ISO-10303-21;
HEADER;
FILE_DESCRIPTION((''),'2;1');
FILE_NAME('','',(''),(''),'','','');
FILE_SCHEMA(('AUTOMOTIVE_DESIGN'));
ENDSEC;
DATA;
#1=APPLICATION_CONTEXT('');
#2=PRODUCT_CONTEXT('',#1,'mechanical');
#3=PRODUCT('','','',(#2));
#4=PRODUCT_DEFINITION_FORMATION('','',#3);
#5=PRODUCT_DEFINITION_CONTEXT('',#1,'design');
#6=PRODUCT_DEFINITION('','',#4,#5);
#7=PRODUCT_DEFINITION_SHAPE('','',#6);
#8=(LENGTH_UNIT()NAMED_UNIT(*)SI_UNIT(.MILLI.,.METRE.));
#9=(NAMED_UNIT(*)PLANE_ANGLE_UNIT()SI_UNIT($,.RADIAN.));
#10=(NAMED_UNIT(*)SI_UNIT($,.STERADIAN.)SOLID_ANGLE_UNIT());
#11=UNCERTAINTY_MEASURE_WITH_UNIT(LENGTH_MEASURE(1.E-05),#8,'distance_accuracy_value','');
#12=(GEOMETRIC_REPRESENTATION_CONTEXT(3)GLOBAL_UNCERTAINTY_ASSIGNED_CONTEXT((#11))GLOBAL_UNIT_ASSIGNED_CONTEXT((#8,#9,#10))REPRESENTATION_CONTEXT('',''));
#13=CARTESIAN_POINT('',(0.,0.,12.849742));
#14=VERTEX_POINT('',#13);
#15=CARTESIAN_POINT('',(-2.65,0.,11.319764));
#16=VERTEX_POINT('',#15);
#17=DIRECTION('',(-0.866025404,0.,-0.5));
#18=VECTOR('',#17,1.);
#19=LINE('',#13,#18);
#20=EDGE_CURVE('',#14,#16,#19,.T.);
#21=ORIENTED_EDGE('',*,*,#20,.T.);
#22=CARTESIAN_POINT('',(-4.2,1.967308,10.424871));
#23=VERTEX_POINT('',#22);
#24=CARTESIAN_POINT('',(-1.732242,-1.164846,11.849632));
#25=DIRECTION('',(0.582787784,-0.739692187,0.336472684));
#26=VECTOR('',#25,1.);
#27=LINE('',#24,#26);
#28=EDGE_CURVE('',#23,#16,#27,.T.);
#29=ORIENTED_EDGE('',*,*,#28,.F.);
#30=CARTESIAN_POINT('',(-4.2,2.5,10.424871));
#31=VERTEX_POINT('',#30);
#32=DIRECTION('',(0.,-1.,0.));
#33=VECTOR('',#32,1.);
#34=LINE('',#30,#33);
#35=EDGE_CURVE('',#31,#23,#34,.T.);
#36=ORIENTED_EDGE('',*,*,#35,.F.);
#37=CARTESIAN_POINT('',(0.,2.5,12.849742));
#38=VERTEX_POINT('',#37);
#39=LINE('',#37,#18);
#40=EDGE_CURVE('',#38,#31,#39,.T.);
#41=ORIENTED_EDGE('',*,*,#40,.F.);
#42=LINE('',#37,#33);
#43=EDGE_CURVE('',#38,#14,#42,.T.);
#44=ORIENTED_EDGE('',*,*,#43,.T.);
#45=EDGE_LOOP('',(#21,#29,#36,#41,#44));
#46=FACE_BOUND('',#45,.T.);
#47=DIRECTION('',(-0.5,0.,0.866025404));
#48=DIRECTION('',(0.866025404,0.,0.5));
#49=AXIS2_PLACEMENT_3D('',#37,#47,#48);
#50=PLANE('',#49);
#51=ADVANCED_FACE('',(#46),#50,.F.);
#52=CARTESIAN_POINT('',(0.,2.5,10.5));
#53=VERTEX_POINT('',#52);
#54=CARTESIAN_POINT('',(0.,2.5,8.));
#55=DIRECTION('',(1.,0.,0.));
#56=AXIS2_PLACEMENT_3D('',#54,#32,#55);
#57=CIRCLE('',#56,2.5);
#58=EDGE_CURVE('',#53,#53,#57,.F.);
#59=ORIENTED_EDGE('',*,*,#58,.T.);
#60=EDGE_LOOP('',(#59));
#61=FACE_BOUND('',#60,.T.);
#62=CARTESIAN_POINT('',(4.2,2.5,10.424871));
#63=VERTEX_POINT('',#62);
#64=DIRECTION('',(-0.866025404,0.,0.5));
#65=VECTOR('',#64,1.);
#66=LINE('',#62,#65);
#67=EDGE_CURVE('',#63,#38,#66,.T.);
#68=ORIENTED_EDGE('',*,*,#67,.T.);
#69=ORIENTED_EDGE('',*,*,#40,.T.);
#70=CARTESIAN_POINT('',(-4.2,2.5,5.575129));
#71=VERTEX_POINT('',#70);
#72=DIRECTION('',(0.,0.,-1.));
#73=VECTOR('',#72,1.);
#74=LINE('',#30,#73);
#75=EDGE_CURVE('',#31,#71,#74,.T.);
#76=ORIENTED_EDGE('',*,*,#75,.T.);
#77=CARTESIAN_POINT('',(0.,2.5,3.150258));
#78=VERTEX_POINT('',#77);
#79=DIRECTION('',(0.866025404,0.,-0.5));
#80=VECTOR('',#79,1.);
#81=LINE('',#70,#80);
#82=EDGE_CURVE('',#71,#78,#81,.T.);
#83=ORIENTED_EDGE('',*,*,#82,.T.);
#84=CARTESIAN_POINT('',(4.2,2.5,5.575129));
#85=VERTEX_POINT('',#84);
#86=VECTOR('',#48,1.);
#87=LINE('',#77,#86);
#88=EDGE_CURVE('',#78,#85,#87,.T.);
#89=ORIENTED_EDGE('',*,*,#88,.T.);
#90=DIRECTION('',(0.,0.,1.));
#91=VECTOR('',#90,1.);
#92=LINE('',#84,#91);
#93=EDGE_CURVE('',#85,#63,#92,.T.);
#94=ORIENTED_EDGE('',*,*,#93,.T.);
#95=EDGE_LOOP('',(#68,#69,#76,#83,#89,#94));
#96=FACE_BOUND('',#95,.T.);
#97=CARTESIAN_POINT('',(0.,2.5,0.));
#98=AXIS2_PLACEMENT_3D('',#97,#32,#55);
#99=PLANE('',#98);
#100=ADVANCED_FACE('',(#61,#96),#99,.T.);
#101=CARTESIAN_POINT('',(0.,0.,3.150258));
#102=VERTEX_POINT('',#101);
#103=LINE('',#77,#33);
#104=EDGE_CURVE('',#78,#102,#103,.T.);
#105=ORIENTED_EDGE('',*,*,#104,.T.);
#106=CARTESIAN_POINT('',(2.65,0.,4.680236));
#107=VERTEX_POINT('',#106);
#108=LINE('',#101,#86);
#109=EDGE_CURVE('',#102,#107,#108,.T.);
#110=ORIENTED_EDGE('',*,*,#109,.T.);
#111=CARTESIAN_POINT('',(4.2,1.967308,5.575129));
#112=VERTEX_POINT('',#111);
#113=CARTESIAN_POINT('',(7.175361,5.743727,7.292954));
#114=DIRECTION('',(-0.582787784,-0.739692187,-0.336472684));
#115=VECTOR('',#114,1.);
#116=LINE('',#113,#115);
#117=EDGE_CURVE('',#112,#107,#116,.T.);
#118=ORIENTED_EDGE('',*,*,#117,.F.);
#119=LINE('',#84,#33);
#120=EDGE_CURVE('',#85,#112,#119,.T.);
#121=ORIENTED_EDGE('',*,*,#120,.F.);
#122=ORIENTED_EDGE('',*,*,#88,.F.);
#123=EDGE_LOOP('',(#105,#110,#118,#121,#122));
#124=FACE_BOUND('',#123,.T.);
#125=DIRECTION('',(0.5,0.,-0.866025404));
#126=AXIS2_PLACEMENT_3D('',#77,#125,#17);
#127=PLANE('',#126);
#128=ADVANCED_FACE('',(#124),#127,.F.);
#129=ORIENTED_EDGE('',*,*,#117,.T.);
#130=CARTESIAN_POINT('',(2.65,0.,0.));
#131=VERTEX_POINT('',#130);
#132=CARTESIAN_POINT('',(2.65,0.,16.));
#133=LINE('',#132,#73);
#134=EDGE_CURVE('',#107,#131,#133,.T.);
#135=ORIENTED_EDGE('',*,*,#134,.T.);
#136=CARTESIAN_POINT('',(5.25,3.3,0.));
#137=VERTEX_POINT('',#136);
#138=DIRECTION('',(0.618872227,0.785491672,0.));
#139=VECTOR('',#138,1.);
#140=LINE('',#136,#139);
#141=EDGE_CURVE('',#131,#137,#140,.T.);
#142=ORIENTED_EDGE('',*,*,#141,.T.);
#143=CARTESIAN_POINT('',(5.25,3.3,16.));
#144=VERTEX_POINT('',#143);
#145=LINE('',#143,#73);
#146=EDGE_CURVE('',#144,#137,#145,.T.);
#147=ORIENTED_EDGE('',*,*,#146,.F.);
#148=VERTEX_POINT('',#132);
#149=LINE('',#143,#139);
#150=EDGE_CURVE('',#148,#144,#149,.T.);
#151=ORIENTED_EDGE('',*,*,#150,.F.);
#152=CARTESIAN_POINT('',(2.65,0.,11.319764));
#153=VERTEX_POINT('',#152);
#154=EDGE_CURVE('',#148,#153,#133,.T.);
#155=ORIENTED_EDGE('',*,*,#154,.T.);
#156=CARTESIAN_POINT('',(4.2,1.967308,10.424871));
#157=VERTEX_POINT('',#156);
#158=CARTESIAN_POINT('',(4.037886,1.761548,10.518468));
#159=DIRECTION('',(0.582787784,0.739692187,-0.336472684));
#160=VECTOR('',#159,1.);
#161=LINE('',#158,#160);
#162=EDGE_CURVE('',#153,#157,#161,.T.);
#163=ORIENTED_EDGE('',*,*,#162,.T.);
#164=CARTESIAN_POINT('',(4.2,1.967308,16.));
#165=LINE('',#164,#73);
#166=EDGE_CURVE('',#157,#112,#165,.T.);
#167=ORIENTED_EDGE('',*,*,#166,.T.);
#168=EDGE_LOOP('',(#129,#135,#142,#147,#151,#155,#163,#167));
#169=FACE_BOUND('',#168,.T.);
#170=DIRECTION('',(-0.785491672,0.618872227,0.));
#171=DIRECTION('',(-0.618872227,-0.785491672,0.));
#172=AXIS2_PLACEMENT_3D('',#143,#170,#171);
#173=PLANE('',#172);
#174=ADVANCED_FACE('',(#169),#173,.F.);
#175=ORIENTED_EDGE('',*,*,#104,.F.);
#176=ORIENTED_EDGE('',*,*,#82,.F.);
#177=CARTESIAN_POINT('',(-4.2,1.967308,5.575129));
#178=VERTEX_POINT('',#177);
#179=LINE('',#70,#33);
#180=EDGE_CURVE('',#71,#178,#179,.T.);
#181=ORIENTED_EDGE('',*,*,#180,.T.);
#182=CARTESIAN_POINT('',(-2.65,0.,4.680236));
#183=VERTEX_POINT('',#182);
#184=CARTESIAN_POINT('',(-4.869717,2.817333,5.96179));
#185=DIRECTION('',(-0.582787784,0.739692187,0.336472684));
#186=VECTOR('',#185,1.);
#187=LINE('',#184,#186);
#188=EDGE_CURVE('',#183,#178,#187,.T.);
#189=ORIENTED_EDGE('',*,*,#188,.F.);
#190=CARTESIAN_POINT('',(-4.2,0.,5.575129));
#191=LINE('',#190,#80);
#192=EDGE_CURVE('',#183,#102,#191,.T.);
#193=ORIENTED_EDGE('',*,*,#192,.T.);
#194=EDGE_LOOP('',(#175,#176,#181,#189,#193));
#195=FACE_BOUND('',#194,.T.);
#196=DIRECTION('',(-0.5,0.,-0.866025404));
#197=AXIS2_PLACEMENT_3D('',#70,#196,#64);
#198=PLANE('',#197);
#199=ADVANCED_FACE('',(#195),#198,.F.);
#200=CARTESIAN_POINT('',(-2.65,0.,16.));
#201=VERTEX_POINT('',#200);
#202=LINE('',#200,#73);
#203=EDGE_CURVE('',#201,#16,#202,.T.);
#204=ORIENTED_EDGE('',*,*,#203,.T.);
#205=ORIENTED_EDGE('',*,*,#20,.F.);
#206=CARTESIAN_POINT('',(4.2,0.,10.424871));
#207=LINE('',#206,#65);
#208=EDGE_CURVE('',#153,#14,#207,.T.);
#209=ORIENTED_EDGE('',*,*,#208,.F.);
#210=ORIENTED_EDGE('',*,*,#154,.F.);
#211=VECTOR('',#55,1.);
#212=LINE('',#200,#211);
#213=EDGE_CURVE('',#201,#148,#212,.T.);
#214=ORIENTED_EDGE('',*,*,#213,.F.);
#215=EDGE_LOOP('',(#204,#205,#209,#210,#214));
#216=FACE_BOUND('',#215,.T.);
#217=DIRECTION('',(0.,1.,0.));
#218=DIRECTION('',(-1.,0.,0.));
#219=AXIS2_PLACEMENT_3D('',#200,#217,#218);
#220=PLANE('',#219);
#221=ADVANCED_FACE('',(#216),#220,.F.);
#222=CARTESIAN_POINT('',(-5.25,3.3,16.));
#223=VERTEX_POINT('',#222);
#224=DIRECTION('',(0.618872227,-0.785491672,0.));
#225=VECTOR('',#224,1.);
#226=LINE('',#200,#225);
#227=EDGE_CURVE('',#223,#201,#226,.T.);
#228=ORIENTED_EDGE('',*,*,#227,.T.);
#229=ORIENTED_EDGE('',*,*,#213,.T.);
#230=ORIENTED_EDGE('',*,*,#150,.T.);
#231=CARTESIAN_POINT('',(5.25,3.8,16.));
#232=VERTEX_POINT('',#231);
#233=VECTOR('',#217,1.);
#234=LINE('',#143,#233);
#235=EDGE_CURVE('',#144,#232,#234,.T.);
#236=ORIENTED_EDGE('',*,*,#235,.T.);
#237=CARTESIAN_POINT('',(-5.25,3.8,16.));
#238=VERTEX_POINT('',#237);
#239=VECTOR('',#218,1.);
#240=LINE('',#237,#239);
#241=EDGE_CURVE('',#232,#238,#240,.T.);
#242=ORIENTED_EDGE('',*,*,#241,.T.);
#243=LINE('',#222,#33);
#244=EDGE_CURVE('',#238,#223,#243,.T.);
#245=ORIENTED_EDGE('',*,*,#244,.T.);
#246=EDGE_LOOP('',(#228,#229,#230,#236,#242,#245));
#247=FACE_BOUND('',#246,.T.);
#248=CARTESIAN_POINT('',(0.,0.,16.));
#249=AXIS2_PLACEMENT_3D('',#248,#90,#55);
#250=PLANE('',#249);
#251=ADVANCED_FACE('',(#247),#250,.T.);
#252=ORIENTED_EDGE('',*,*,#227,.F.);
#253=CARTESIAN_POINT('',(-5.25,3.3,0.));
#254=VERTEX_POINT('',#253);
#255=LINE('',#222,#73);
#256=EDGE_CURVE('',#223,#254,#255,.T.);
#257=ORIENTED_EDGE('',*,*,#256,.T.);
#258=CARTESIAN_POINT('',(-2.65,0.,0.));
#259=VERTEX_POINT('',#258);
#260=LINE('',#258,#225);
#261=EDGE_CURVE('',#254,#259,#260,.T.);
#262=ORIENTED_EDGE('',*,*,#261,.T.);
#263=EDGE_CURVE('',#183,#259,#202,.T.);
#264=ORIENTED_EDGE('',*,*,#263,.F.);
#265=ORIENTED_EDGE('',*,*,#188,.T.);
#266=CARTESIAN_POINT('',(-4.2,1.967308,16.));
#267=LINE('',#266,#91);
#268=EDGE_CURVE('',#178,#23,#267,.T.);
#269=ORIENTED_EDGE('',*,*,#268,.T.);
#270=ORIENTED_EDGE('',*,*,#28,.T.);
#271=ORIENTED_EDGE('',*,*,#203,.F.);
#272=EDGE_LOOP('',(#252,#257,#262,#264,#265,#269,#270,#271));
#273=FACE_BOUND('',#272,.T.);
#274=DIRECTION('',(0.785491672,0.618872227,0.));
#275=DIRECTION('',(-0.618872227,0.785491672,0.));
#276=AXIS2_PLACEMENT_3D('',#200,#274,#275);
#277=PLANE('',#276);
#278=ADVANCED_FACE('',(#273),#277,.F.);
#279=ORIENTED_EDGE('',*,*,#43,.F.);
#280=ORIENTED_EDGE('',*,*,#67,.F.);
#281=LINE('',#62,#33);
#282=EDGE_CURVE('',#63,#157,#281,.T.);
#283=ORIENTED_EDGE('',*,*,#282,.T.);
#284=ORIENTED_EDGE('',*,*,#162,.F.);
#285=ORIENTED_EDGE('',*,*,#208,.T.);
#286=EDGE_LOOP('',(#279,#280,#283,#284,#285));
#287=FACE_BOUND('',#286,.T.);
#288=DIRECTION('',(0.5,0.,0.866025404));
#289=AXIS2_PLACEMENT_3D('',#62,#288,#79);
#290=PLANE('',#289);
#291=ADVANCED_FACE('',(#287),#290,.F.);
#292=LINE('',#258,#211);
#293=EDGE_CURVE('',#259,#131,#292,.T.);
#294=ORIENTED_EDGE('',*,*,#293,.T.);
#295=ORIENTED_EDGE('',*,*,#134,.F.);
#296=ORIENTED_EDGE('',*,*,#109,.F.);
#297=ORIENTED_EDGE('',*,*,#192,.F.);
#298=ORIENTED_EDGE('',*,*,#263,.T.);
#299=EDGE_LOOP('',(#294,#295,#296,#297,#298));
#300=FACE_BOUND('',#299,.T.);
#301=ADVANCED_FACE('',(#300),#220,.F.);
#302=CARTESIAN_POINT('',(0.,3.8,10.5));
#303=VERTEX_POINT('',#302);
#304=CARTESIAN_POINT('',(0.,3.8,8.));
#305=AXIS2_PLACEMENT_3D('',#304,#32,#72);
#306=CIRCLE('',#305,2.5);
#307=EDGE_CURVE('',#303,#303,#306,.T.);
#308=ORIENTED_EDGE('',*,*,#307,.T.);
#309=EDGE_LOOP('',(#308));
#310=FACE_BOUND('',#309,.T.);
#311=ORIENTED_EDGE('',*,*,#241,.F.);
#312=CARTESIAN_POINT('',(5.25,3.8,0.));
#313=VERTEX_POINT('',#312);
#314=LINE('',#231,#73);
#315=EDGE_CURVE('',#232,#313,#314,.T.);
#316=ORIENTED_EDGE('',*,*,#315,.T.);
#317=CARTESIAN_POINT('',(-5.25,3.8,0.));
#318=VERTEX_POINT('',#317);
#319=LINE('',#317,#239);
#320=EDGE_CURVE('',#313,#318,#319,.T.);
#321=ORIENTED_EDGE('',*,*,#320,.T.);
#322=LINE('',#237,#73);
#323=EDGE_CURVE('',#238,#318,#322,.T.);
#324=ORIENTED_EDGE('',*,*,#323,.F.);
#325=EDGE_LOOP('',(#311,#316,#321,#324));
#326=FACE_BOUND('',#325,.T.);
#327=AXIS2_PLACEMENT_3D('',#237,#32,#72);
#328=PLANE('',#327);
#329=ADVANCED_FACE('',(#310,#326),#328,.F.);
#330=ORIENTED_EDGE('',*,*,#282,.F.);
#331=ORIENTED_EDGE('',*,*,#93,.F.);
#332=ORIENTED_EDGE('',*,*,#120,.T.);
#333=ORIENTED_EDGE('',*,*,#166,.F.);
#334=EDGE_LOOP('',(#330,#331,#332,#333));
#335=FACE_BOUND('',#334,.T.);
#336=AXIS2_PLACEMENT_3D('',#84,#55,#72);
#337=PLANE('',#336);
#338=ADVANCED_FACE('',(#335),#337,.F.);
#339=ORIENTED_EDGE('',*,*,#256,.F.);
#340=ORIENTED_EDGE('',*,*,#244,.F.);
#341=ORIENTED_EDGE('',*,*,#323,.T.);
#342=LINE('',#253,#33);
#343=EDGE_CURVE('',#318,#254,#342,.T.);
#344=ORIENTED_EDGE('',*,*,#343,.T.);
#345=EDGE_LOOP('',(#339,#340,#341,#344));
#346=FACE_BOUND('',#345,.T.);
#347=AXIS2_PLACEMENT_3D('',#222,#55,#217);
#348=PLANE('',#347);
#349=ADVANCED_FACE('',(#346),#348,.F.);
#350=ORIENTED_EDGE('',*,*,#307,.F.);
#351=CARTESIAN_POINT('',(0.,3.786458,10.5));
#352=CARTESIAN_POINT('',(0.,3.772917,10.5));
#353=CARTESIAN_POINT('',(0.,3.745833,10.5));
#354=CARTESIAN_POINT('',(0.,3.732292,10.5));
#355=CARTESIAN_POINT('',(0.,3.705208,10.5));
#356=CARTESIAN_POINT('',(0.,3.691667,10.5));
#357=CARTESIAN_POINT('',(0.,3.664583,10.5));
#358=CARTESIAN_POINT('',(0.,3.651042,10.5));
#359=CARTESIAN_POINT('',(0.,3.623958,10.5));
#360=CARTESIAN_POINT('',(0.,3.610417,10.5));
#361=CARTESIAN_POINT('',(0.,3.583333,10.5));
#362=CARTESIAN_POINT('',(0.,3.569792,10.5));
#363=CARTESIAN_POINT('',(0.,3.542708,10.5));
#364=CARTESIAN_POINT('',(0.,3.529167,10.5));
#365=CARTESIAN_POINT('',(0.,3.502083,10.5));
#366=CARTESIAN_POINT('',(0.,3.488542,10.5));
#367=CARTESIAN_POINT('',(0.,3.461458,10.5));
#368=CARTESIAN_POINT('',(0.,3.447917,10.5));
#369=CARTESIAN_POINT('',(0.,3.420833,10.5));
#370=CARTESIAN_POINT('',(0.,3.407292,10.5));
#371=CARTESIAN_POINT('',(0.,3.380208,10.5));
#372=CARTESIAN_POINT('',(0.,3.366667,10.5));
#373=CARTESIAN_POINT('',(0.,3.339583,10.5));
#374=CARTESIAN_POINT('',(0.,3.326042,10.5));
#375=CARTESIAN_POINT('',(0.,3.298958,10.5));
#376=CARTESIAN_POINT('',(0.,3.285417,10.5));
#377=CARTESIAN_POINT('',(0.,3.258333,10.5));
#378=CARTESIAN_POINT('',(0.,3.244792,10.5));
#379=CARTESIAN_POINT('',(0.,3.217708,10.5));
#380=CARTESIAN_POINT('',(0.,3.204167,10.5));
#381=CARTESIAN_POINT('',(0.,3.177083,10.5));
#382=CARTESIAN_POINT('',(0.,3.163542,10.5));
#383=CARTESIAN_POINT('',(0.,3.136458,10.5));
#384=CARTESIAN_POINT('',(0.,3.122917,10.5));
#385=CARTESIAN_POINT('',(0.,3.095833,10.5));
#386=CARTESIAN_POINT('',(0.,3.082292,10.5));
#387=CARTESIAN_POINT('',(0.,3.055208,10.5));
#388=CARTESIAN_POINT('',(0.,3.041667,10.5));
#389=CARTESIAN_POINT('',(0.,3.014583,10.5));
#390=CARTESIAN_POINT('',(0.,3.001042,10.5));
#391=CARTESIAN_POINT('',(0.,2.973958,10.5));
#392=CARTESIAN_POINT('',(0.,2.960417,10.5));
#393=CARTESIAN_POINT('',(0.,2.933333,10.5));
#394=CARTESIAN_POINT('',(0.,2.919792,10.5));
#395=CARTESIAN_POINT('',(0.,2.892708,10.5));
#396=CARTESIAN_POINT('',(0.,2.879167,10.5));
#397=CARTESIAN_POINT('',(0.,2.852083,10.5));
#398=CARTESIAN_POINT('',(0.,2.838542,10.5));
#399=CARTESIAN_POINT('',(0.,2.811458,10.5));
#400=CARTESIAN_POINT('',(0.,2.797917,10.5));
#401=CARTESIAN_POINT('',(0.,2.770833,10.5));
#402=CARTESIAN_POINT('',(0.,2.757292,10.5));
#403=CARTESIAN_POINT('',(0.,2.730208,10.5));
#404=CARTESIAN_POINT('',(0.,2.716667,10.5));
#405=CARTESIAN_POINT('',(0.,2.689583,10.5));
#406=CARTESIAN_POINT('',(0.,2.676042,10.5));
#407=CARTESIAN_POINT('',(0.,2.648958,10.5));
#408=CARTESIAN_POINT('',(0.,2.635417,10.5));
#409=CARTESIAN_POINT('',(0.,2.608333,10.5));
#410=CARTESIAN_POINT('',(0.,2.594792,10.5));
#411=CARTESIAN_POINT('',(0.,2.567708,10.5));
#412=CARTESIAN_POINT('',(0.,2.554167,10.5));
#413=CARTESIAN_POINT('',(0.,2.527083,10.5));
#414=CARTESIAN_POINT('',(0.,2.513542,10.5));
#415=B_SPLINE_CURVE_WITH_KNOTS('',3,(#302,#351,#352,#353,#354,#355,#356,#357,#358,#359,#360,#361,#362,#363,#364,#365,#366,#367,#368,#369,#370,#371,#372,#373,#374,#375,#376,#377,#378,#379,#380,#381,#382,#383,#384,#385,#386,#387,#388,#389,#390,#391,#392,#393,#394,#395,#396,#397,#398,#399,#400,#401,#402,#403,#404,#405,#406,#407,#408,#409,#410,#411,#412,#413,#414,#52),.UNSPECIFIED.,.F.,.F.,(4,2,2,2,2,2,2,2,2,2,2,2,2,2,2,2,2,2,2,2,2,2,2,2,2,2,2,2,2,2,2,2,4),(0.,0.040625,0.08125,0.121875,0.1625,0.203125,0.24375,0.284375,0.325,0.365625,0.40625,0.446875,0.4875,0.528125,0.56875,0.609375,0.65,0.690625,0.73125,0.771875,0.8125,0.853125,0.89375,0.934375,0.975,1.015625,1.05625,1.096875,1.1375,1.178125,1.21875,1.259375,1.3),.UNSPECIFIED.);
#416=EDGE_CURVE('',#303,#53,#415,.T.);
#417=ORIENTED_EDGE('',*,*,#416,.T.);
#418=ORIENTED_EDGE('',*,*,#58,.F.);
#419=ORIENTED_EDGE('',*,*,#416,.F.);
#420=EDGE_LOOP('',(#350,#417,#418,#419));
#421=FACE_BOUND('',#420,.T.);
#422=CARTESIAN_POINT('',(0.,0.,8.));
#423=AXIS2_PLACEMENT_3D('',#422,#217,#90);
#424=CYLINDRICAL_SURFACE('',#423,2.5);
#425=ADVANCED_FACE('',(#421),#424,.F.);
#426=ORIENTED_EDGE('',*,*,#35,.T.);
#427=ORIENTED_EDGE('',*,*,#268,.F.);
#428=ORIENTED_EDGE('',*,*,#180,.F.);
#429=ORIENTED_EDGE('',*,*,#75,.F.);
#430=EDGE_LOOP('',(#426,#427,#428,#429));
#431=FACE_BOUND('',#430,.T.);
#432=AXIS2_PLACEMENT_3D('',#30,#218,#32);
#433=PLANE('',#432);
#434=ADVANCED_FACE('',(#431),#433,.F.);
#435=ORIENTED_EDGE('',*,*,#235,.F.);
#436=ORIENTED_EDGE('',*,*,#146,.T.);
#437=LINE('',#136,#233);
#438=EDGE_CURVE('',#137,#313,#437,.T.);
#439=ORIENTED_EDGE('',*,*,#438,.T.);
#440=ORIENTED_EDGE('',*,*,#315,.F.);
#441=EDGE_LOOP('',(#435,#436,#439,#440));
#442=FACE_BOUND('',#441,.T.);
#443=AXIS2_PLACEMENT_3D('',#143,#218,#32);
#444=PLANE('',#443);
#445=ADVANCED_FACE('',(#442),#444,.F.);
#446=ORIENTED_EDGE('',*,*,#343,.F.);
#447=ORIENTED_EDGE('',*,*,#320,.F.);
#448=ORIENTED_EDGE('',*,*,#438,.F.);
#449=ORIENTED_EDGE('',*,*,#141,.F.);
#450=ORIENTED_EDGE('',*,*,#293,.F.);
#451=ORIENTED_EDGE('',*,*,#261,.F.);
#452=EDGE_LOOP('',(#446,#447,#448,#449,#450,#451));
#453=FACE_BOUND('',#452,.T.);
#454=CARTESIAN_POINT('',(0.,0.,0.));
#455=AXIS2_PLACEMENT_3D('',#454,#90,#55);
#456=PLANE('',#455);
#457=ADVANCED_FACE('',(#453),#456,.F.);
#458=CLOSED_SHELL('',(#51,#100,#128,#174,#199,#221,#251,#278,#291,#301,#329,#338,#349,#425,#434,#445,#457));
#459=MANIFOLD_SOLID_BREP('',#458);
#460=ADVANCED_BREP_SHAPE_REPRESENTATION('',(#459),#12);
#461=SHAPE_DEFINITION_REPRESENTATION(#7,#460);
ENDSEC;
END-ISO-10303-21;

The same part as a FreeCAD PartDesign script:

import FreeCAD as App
import Part
import Sketcher
Q = App.Units.Quantity


def add_polygon(sketch, points):
    """Adds a closed chain of lines whose ends are joined by coincident constraints."""
    first, n = sketch.GeometryCount, len(points)
    for a, b in zip(points, points[1:] + points[:1]):
        sketch.addGeometry(Part.LineSegment(App.Vector(*a, 0), App.Vector(*b, 0)), False)
    for i in range(n):
        sketch.addConstraint(Sketcher.Constraint("Coincident", first + i, 2, first + (i + 1) % n, 1))

doc = App.newDocument("Part")
body = doc.addObject("PartDesign::Body", "Body")

# Sketch on XY plane
sketch1 = doc.addObject("Sketcher::SketchObject", "Sketch")
body.addObject(sketch1)
sketch1.AttachmentSupport = (doc.XY_Plane, [""])
sketch1.MapMode = "FlatFace"
add_polygon(sketch1, [(-2.65, 0), (2.65, 0), (5.25, 3.3), (5.25, 3.8), (-5.25, 3.8), (-5.25, 3.3)])  # lines 0-5
sketch1.addConstraint(Sketcher.Constraint("Horizontal", 0))
sketch1.addConstraint(Sketcher.Constraint("Vertical", 2))
sketch1.addConstraint(Sketcher.Constraint("Horizontal", 3))
sketch1.addConstraint(Sketcher.Constraint("Vertical", 4))
sketch1.addConstraint(Sketcher.Constraint("Symmetric", 0, 2, 5, 2, -1, 1))
sketch1.addConstraint(Sketcher.Constraint("Symmetric", 1, 2, 4, 2, -2))
sketch1.addConstraint(Sketcher.Constraint("DistanceX", 0, 1, 0, 2, Q("5.3 mm")))
sketch1.addConstraint(Sketcher.Constraint("DistanceX", 3, 2, 3, 1, Q("10.5 mm")))
sketch1.addConstraint(Sketcher.Constraint("DistanceY", 2, 1, 2, 2, Q("0.5 mm")))
sketch1.addConstraint(Sketcher.Constraint("DistanceY", -1, 1, 1, 2, Q("3.3 mm")))
pad1 = doc.addObject("PartDesign::Pad", "Pad")
body.addObject(pad1)
pad1.Profile = sketch1
pad1.Length = 16

# Sketch on XZ plane
sketch2 = doc.addObject("Sketcher::SketchObject", "Sketch001")
body.addObject(sketch2)
sketch2.AttachmentSupport = (doc.XZ_Plane, [""])
sketch2.MapMode = "FlatFace"
sketch2.AttachmentOffset = App.Placement(App.Vector(0, 0, -3.8), App.Rotation())
sketch2.addGeometry(Part.Circle(App.Vector(0, 8, 0), App.Vector(0, 0, 1), 2.5), False)
sketch2.addConstraint(Sketcher.Constraint("PointOnObject", 0, 3, -2))
sketch2.addConstraint(Sketcher.Constraint("Diameter", 0, Q("5 mm")))
sketch2.addConstraint(Sketcher.Constraint("DistanceY", -1, 1, 0, 3, Q("8 mm")))
pocket1 = doc.addObject("PartDesign::Pocket", "Pocket")
body.addObject(pocket1)
pocket1.Profile = sketch2
pocket1.Type = "ThroughAll"
pocket1.Midplane = True

# Sketch on XZ plane
sketch3 = doc.addObject("Sketcher::SketchObject", "Sketch002")
body.addObject(sketch3)
sketch3.AttachmentSupport = (doc.XZ_Plane, [""])
sketch3.MapMode = "FlatFace"
add_polygon(sketch3, [(0, 12.849742), (-4.2, 10.424871), (-4.2, 5.575129), (0, 3.150258), (4.2, 5.575129), (4.2, 10.424871)])  # lines 0-5
sketch3.addConstraint(Sketcher.Constraint("Vertical", 1))
sketch3.addConstraint(Sketcher.Constraint("Vertical", 4))
sketch3.addConstraint(Sketcher.Constraint("Symmetric", 1, 2, 3, 2, -2))
sketch3.addConstraint(Sketcher.Constraint("PointOnObject", 2, 2, -2))
sketch3.addConstraint(Sketcher.Constraint("PointOnObject", 5, 2, -2))
sketch3.addConstraint(Sketcher.Constraint("Parallel", 0, 3))
sketch3.addConstraint(Sketcher.Constraint("Parallel", 2, 5))
sketch3.addConstraint(Sketcher.Constraint("Angle", 0, Q("-150 deg")))
sketch3.addConstraint(Sketcher.Constraint("DistanceX", 0, 2, -1, 1, Q("4.2 mm")))
sketch3.addConstraint(Sketcher.Constraint("DistanceY", 1, 2, 1, 1, Q("4.849742 mm")))
sketch3.addConstraint(Sketcher.Constraint("DistanceY", -1, 1, 0, 2, Q("10.424871 mm")))
pocket2 = doc.addObject("PartDesign::Pocket", "Pocket001")
body.addObject(pocket2)
pocket2.Profile = sketch3
pocket2.Length = 2.5

doc.recompute()
